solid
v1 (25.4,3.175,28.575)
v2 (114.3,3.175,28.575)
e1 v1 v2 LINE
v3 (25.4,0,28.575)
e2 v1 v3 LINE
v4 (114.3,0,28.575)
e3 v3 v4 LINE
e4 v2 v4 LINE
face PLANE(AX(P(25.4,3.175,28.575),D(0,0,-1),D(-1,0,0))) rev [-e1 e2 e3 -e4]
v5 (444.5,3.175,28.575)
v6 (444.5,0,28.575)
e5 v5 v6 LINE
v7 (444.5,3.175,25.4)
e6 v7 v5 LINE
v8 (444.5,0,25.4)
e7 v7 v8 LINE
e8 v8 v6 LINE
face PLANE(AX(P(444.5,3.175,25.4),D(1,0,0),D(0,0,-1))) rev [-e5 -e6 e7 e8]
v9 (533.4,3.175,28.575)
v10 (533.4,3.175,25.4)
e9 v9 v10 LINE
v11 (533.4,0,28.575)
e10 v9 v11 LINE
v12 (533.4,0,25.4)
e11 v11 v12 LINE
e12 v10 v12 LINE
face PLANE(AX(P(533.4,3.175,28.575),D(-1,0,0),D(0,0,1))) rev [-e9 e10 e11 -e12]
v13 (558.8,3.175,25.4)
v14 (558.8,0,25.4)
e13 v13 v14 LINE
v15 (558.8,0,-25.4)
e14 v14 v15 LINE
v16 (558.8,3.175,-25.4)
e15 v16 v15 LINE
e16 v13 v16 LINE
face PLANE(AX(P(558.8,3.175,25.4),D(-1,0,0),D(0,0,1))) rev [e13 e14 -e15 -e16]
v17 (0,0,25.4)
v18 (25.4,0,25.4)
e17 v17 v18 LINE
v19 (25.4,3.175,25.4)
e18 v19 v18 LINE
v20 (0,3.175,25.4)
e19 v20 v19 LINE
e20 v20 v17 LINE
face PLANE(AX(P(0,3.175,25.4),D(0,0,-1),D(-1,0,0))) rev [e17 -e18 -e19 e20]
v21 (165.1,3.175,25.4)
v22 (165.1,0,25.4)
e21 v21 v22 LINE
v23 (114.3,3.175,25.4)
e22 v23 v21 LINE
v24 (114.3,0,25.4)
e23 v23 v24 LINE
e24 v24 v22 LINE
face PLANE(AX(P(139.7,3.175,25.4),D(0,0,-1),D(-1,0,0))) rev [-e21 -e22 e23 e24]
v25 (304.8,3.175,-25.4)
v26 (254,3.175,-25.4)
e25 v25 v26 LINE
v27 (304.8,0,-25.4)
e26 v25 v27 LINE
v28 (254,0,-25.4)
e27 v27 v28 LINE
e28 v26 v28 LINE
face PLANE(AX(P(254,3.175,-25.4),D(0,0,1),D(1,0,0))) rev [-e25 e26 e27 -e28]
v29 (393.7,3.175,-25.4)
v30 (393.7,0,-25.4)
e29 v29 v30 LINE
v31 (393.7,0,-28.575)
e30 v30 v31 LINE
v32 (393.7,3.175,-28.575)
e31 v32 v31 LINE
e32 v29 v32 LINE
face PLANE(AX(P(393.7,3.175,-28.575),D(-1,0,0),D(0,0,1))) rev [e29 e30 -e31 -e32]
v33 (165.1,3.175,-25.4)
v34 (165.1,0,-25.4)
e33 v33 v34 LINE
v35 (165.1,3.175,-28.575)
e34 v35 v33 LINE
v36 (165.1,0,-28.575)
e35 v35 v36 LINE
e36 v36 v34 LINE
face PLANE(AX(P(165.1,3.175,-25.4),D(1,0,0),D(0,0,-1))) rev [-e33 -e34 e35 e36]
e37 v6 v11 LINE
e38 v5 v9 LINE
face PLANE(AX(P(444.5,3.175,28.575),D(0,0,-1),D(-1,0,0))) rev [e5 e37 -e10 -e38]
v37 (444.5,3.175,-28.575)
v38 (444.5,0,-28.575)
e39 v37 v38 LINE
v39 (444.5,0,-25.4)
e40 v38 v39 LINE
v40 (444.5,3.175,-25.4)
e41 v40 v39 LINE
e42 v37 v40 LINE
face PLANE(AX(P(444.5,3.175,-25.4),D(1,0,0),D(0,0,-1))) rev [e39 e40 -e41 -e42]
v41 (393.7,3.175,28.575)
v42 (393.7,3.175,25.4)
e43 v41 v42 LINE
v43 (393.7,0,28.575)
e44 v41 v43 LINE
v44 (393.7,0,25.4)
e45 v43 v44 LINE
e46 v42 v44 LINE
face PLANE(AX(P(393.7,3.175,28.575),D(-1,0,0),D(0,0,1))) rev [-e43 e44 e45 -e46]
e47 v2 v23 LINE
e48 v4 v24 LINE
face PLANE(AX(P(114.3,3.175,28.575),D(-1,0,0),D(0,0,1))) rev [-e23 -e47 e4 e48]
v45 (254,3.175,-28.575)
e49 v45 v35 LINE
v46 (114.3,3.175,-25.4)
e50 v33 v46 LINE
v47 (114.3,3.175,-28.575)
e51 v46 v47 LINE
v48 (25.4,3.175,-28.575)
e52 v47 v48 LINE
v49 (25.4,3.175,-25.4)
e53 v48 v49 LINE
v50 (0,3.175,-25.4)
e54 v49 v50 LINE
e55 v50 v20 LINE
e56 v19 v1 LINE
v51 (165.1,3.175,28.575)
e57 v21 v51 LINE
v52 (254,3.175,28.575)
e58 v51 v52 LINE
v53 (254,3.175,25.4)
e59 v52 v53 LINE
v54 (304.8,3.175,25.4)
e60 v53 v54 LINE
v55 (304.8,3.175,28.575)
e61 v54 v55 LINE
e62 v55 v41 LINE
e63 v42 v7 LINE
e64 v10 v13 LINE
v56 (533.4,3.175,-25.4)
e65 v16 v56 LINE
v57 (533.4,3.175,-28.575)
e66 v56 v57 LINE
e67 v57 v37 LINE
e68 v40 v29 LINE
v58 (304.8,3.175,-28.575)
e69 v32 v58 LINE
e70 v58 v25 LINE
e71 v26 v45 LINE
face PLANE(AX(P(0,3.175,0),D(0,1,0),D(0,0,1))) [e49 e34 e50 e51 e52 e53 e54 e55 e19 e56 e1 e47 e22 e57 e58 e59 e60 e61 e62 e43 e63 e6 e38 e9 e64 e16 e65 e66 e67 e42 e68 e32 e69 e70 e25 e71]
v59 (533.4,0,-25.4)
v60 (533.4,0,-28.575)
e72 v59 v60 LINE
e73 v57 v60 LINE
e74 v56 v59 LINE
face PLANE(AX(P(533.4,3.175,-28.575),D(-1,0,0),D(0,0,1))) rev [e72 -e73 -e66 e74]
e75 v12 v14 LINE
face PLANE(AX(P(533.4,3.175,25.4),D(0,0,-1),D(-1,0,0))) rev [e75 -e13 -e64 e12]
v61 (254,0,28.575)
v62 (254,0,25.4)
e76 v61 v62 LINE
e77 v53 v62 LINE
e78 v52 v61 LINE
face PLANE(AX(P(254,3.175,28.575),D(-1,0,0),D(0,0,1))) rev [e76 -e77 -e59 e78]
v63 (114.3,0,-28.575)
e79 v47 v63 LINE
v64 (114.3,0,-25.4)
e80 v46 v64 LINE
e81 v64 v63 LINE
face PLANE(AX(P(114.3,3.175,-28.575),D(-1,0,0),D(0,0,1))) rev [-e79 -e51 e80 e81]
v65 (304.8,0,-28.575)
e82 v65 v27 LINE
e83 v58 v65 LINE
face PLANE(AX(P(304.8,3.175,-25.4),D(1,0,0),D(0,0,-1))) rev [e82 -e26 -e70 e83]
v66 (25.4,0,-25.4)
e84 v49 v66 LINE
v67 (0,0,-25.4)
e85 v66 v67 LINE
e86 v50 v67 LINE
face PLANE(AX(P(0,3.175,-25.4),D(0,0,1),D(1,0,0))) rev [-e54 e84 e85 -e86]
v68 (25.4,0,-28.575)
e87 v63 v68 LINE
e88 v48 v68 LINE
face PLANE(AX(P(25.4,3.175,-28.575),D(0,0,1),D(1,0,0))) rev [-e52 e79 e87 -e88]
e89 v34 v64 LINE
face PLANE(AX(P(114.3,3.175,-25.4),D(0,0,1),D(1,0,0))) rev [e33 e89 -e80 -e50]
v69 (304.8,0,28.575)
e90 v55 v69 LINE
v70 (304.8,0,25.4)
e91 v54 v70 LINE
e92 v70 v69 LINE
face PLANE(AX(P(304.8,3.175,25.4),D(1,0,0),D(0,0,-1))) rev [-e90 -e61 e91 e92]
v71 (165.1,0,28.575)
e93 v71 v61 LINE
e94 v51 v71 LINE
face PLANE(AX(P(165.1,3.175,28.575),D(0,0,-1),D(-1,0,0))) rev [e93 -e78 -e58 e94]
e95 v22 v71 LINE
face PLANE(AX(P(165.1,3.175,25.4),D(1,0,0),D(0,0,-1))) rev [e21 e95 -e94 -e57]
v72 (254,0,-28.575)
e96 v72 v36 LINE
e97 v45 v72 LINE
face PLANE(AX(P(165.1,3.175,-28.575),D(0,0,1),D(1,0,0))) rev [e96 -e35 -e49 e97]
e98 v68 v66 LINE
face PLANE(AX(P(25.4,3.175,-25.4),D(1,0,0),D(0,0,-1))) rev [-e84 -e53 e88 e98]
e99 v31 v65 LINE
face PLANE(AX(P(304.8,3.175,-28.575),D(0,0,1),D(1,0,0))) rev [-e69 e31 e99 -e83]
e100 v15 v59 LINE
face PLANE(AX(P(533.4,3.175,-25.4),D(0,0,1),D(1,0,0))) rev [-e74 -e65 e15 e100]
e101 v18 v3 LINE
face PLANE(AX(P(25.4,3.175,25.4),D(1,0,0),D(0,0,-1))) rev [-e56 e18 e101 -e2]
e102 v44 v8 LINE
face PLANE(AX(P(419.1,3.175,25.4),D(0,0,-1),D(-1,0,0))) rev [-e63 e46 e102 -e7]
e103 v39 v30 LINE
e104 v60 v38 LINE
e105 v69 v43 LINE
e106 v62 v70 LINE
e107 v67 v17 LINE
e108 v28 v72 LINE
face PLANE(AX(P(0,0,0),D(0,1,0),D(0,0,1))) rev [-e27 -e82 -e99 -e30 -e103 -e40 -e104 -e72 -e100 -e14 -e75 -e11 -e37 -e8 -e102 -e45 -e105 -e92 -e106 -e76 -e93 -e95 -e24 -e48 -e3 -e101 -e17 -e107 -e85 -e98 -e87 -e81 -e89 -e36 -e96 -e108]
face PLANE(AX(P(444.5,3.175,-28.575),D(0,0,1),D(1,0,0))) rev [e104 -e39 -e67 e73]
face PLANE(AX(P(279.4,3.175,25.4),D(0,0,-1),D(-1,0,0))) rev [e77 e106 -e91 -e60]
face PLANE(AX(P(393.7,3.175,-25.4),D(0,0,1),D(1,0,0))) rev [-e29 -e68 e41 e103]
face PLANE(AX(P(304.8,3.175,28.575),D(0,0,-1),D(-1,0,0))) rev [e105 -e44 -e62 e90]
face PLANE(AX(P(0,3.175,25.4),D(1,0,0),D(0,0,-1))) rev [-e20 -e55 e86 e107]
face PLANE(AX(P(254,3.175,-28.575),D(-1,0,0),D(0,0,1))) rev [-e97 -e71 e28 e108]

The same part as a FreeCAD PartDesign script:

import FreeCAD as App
import Part
import Sketcher
from FreeCAD import Vector
Q = App.Units.Quantity

doc = App.newDocument("Part")
body = doc.addObject("PartDesign::Body", "Body")

# Sketch on XZ plane
sketch1 = doc.addObject("Sketcher::SketchObject", "Sketch")
body.addObject(sketch1)
sketch1.AttachmentSupport = (doc.XZ_Plane, [""])
sketch1.MapMode = "FlatFace"
sketch1.addGeometry([
    Part.LineSegment(Vector(0, -25.4, 0), Vector(0, 25.4, 0)),  # 0
    Part.LineSegment(Vector(0, 25.4, 0), Vector(25.4, 25.4, 0)),  # 1
    Part.LineSegment(Vector(25.4, 25.4, 0), Vector(25.4, 28.575, 0)),  # 2
    Part.LineSegment(Vector(25.4, 28.575, 0), Vector(114.3, 28.575, 0)),  # 3
    Part.LineSegment(Vector(114.3, 28.575, 0), Vector(114.3, 25.4, 0)),  # 4
    Part.LineSegment(Vector(114.3, 25.4, 0), Vector(165.1, 25.4, 0)),  # 5
    Part.LineSegment(Vector(165.1, 25.4, 0), Vector(165.1, 28.575, 0)),  # 6
    Part.LineSegment(Vector(165.1, 28.575, 0), Vector(254, 28.575, 0)),  # 7
    Part.LineSegment(Vector(254, 28.575, 0), Vector(254, 25.4, 0)),  # 8
    Part.LineSegment(Vector(254, 25.4, 0), Vector(304.8, 25.4, 0)),  # 9
    Part.LineSegment(Vector(304.8, 25.4, 0), Vector(304.8, 28.575, 0)),  # 10
    Part.LineSegment(Vector(304.8, 28.575, 0), Vector(393.7, 28.575, 0)),  # 11
    Part.LineSegment(Vector(393.7, 28.575, 0), Vector(393.7, 25.4, 0)),  # 12
    Part.LineSegment(Vector(393.7, 25.4, 0), Vector(444.5, 25.4, 0)),  # 13
    Part.LineSegment(Vector(444.5, 25.4, 0), Vector(444.5, 28.575, 0)),  # 14
    Part.LineSegment(Vector(444.5, 28.575, 0), Vector(533.4, 28.575, 0)),  # 15
    Part.LineSegment(Vector(533.4, 28.575, 0), Vector(533.4, 25.4, 0)),  # 16
    Part.LineSegment(Vector(533.4, 25.4, 0), Vector(558.8, 25.4, 0)),  # 17
    Part.LineSegment(Vector(558.8, 25.4, 0), Vector(558.8, -25.4, 0)),  # 18
    Part.LineSegment(Vector(558.8, -25.4, 0), Vector(533.4, -25.4, 0)),  # 19
    Part.LineSegment(Vector(533.4, -25.4, 0), Vector(533.4, -28.575, 0)),  # 20
    Part.LineSegment(Vector(533.4, -28.575, 0), Vector(444.5, -28.575, 0)),  # 21
    Part.LineSegment(Vector(444.5, -28.575, 0), Vector(444.5, -25.4, 0)),  # 22
    Part.LineSegment(Vector(444.5, -25.4, 0), Vector(393.7, -25.4, 0)),  # 23
    Part.LineSegment(Vector(393.7, -25.4, 0), Vector(393.7, -28.575, 0)),  # 24
    Part.LineSegment(Vector(393.7, -28.575, 0), Vector(304.8, -28.575, 0)),  # 25
    Part.LineSegment(Vector(304.8, -28.575, 0), Vector(304.8, -25.4, 0)),  # 26
    Part.LineSegment(Vector(304.8, -25.4, 0), Vector(254, -25.4, 0)),  # 27
    Part.LineSegment(Vector(254, -25.4, 0), Vector(254, -28.575, 0)),  # 28
    Part.LineSegment(Vector(254, -28.575, 0), Vector(165.1, -28.575, 0)),  # 29
    Part.LineSegment(Vector(165.1, -28.575, 0), Vector(165.1, -25.4, 0)),  # 30
    Part.LineSegment(Vector(165.1, -25.4, 0), Vector(114.3, -25.4, 0)),  # 31
    Part.LineSegment(Vector(114.3, -25.4, 0), Vector(114.3, -28.575, 0)),  # 32
    Part.LineSegment(Vector(114.3, -28.575, 0), Vector(25.4, -28.575, 0)),  # 33
    Part.LineSegment(Vector(25.4, -28.575, 0), Vector(25.4, -25.4, 0)),  # 34
    Part.LineSegment(Vector(25.4, -25.4, 0), Vector(0, -25.4, 0)),  # 35
], False)
sketch1.addConstraint([
    Sketcher.Constraint("Coincident", 0, 2, 1, 1),
    Sketcher.Constraint("Coincident", 1, 2, 2, 1),
    Sketcher.Constraint("Coincident", 2, 2, 3, 1),
    Sketcher.Constraint("Coincident", 3, 2, 4, 1),
    Sketcher.Constraint("Coincident", 4, 2, 5, 1),
    Sketcher.Constraint("Coincident", 5, 2, 6, 1),
    Sketcher.Constraint("Coincident", 6, 2, 7, 1),
    Sketcher.Constraint("Coincident", 7, 2, 8, 1),
    Sketcher.Constraint("Coincident", 8, 2, 9, 1),
    Sketcher.Constraint("Coincident", 9, 2, 10, 1),
    Sketcher.Constraint("Coincident", 10, 2, 11, 1),
    Sketcher.Constraint("Coincident", 11, 2, 12, 1),
    Sketcher.Constraint("Coincident", 12, 2, 13, 1),
    Sketcher.Constraint("Coincident", 13, 2, 14, 1),
    Sketcher.Constraint("Coincident", 14, 2, 15, 1),
    Sketcher.Constraint("Coincident", 15, 2, 16, 1),
    Sketcher.Constraint("Coincident", 16, 2, 17, 1),
    Sketcher.Constraint("Coincident", 17, 2, 18, 1),
    Sketcher.Constraint("Coincident", 18, 2, 19, 1),
    Sketcher.Constraint("Coincident", 19, 2, 20, 1),
    Sketcher.Constraint("Coincident", 20, 2, 21, 1),
    Sketcher.Constraint("Coincident", 21, 2, 22, 1),
    Sketcher.Constraint("Coincident", 22, 2, 23, 1),
    Sketcher.Constraint("Coincident", 23, 2, 24, 1),
    Sketcher.Constraint("Coincident", 24, 2, 25, 1),
    Sketcher.Constraint("Coincident", 25, 2, 26, 1),
    Sketcher.Constraint("Coincident", 26, 2, 27, 1),
    Sketcher.Constraint("Coincident", 27, 2, 28, 1),
    Sketcher.Constraint("Coincident", 28, 2, 29, 1),
    Sketcher.Constraint("Coincident", 29, 2, 30, 1),
    Sketcher.Constraint("Coincident", 30, 2, 31, 1),
    Sketcher.Constraint("Coincident", 31, 2, 32, 1),
    Sketcher.Constraint("Coincident", 32, 2, 33, 1),
    Sketcher.Constraint("Coincident", 33, 2, 34, 1),
    Sketcher.Constraint("Coincident", 34, 2, 35, 1),
    Sketcher.Constraint("Coincident", 35, 2, 0, 1),
    Sketcher.Constraint("Vertical", 0),
    Sketcher.Constraint("Horizontal", 1),
    Sketcher.Constraint("Vertical", 2),
    Sketcher.Constraint("Horizontal", 3),
    Sketcher.Constraint("Vertical", 4),
    Sketcher.Constraint("Horizontal", 5),
    Sketcher.Constraint("Vertical", 6),
    Sketcher.Constraint("Horizontal", 7),
    Sketcher.Constraint("Vertical", 8),
    Sketcher.Constraint("Horizontal", 9),
    Sketcher.Constraint("Vertical", 10),
    Sketcher.Constraint("Horizontal", 11),
    Sketcher.Constraint("Vertical", 12),
    Sketcher.Constraint("Horizontal", 13),
    Sketcher.Constraint("Vertical", 14),
    Sketcher.Constraint("Horizontal", 15),
    Sketcher.Constraint("Vertical", 16),
    Sketcher.Constraint("Horizontal", 17),
    Sketcher.Constraint("Vertical", 18),
    Sketcher.Constraint("Horizontal", 19),
    Sketcher.Constraint("Vertical", 20),
    Sketcher.Constraint("Horizontal", 21),
    Sketcher.Constraint("Vertical", 22),
    Sketcher.Constraint("Horizontal", 23),
    Sketcher.Constraint("Vertical", 24),
    Sketcher.Constraint("Horizontal", 25),
    Sketcher.Constraint("Vertical", 26),
    Sketcher.Constraint("Horizontal", 27),
    Sketcher.Constraint("Vertical", 28),
    Sketcher.Constraint("Horizontal", 29),
    Sketcher.Constraint("Vertical", 30),
    Sketcher.Constraint("Horizontal", 31),
    Sketcher.Constraint("Vertical", 32),
    Sketcher.Constraint("Horizontal", 33),
    Sketcher.Constraint("Vertical", 34),
    Sketcher.Constraint("Horizontal", 35),
    Sketcher.Constraint("Symmetric", 0, 2, 35, 2, -1, 1),
    Sketcher.Constraint("Symmetric", 16, 2, 19, 2, -1),
    Sketcher.Constraint("Symmetric", 14, 2, 21, 2, -1),
    Sketcher.Constraint("Symmetric", 12, 2, 23, 2, -1),
    Sketcher.Constraint("Symmetric", 10, 2, 25, 2, -1),
    Sketcher.Constraint("Symmetric", 8, 2, 27, 2, -1),
    Sketcher.Constraint("Symmetric", 6, 2, 29, 2, -1),
    Sketcher.Constraint("Symmetric", 4, 2, 31, 2, -1),
    Sketcher.Constraint("Symmetric", 2, 2, 33, 2, -1),
    Sketcher.Constraint("Horizontal", 1, 2, 4, 2),
    Sketcher.Constraint("Horizontal", 3, 2, 6, 2),
    Sketcher.Constraint("Horizontal", 5, 2, 8, 2),
    Sketcher.Constraint("Horizontal", 7, 2, 10, 2),
    Sketcher.Constraint("Horizontal", 9, 2, 12, 2),
    Sketcher.Constraint("Horizontal", 11, 2, 14, 2),
    Sketcher.Constraint("Horizontal", 13, 2, 16, 2),
    Sketcher.Constraint("Equal", 3, 7),
    Sketcher.Constraint("Equal", 5, 9),
    Sketcher.Constraint("Equal", 7, 11),
    Sketcher.Constraint("Equal", 9, 13),
    Sketcher.Constraint("Equal", 11, 15),
    Sketcher.Constraint("Equal", 1, 17),
    Sketcher.Constraint("Equal", 31, 0),
    Sketcher.Constraint("DistanceX", 1, 1, 1, 2, Q("1 in")),
    Sketcher.Constraint("DistanceX", 5, 1, 5, 2, Q("2 in")),
    Sketcher.Constraint("DistanceX", 3, 1, 3, 2, Q("3.5 in")),
    Sketcher.Constraint("DistanceY", 2, 1, 2, 2, Q("0.125 in")),
])
pad1 = doc.addObject("PartDesign::Pad", "Pad")
body.addObject(pad1)
pad1.Profile = sketch1
pad1.Length = Q("0.125 in")
pad1.Reversed = True

doc.recompute()
